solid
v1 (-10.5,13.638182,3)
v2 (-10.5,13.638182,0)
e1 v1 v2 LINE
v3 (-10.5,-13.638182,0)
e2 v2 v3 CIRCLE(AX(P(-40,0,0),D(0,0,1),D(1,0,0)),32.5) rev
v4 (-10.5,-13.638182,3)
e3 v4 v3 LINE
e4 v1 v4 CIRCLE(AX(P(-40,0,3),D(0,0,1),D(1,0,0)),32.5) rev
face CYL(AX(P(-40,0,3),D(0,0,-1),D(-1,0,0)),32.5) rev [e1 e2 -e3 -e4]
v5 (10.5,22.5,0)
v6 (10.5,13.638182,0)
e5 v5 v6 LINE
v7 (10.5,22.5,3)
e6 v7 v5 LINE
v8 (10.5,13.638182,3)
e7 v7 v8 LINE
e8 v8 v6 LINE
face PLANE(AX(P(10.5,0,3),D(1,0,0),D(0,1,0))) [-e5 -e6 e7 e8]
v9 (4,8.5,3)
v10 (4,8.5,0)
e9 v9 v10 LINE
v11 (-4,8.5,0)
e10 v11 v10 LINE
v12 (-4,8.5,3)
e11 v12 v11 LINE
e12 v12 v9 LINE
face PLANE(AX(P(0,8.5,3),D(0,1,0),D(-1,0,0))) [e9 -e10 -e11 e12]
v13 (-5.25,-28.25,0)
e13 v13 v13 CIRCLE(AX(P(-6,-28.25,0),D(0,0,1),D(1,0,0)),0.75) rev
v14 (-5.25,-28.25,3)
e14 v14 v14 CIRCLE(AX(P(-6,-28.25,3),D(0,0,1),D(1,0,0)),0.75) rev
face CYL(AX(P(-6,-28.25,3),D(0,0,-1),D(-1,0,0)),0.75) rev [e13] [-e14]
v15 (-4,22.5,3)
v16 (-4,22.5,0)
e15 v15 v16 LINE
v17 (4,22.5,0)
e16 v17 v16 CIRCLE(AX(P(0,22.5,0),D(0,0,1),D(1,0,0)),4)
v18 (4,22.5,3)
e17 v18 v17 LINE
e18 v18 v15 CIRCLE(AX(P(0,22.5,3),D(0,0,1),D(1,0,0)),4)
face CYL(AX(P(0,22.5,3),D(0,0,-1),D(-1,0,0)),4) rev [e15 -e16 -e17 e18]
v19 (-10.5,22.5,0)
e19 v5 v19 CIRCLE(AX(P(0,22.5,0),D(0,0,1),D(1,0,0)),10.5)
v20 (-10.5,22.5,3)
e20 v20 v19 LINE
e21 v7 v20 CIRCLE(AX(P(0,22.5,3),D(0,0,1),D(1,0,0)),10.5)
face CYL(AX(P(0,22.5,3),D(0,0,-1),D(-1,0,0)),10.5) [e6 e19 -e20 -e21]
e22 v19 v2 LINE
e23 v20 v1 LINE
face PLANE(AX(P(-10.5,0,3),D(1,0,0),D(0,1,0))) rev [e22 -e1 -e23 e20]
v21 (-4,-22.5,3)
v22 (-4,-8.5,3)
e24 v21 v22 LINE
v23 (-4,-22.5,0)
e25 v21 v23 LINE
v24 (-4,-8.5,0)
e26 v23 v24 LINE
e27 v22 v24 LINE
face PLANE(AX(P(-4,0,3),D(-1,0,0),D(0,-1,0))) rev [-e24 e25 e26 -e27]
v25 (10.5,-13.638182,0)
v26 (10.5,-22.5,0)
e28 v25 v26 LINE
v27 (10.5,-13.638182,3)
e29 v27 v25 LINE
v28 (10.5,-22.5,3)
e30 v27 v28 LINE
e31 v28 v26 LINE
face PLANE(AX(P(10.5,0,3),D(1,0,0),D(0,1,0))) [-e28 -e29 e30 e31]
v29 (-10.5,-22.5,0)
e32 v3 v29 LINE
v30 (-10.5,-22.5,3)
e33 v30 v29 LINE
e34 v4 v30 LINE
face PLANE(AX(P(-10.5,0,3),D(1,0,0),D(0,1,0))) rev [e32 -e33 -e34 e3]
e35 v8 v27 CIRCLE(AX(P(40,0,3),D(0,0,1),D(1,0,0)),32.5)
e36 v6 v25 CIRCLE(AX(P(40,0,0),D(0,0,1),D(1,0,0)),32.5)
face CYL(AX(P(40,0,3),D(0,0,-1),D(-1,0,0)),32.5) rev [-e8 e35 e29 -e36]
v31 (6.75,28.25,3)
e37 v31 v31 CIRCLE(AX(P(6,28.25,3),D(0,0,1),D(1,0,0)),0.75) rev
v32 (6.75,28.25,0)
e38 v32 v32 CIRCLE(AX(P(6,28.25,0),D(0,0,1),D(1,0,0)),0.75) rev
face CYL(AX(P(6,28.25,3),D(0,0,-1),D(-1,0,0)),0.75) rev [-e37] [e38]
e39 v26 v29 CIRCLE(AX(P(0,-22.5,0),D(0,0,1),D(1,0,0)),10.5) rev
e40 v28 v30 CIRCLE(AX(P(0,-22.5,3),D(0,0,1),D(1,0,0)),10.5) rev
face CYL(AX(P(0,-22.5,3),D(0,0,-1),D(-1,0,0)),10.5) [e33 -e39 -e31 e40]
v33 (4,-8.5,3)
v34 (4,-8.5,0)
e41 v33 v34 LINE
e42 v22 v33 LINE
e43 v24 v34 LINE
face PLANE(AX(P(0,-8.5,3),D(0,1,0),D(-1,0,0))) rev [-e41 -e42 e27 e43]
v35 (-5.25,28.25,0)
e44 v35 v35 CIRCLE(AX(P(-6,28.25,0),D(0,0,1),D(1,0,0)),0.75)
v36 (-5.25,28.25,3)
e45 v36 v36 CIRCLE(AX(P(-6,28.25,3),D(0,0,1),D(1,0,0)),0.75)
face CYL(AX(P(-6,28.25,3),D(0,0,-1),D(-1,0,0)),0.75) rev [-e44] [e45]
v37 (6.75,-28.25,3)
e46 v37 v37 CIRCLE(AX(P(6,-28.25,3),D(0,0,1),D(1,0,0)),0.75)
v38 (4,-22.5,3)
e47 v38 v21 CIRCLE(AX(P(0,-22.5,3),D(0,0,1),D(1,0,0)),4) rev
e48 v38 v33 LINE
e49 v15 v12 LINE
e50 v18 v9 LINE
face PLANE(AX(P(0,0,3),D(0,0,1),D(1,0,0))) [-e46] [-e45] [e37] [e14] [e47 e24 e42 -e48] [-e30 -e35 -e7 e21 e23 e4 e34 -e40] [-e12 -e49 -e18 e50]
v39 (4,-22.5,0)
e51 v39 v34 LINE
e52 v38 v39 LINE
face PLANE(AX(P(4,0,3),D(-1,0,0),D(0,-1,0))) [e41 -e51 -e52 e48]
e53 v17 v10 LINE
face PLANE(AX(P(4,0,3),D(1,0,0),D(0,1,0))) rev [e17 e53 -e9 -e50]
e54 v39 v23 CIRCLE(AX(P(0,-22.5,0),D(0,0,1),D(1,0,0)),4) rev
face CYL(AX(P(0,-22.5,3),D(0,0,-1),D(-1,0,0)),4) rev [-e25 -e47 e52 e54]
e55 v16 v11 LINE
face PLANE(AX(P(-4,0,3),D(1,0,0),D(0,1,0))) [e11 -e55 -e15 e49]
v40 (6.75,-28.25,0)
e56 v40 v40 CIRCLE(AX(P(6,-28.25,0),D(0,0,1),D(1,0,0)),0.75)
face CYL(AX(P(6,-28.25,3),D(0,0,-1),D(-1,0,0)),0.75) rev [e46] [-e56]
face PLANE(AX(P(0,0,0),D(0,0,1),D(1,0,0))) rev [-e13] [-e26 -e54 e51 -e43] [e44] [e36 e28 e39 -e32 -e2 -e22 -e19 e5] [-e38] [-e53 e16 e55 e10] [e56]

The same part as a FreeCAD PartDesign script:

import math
import FreeCAD as App
import Part
import Sketcher
Q = App.Units.Quantity

doc = App.newDocument("Part")
body = doc.addObject("PartDesign::Body", "Body")

sketch1 = doc.addObject("Sketcher::SketchObject", "Sketch")
body.addObject(sketch1)
sketch1.AttachmentSupport = (doc.XY_Plane, [""])
sketch1.MapMode = "FlatFace"
sketch1.addGeometry(Part.LineSegment(App.Vector(-10.5, 22.5, 0), App.Vector(-10.5, 13.638182, 0)), False)
sketch1.addGeometry(Part.ArcOfCircle(Part.Circle(App.Vector(-40, 0, 0), App.Vector(0, 0, 1), 32.5), math.radians(-24.811632), math.radians(24.811632)), False)
sketch1.addGeometry(Part.LineSegment(App.Vector(-10.5, -13.638182, 0), App.Vector(-10.5, -22.5, 0)), False)
sketch1.addGeometry(Part.ArcOfCircle(Part.Circle(App.Vector(0, -22.5, 0), App.Vector(0, 0, 1), 10.5), math.radians(180), math.radians(360)), False)
sketch1.addGeometry(Part.LineSegment(App.Vector(10.5, -22.5, 0), App.Vector(10.5, -13.638182, 0)), False)
sketch1.addGeometry(Part.ArcOfCircle(Part.Circle(App.Vector(40, 0, 0), App.Vector(0, 0, 1), 32.5), math.radians(155.188368), math.radians(204.811632)), False)
sketch1.addGeometry(Part.LineSegment(App.Vector(10.5, 13.638182, 0), App.Vector(10.5, 22.5, 0)), False)
sketch1.addGeometry(Part.ArcOfCircle(Part.Circle(App.Vector(0, 22.5, 0), App.Vector(0, 0, 1), 10.5), math.radians(0), math.radians(180)), False)
sketch1.addGeometry(Part.Circle(App.Vector(-6, -28.25, 0), App.Vector(0, 0, 1), 0.75), False)
sketch1.addGeometry(Part.LineSegment(App.Vector(4, -8.5, 0), App.Vector(4, -22.5, 0)), False)
sketch1.addGeometry(Part.ArcOfCircle(Part.Circle(App.Vector(0, -22.5, 0), App.Vector(0, 0, 1), 4), math.radians(179.999995), math.radians(359.999995)), False)
sketch1.addGeometry(Part.LineSegment(App.Vector(-4, -22.5, 0), App.Vector(-4, -8.5, 0)), False)
sketch1.addGeometry(Part.LineSegment(App.Vector(-4, -8.5, 0), App.Vector(4, -8.5, 0)), False)
sketch1.addGeometry(Part.Circle(App.Vector(6, -28.25, 0), App.Vector(0, 0, 1), 0.75), False)
sketch1.addGeometry(Part.Circle(App.Vector(-6, 28.25, 0), App.Vector(0, 0, 1), 0.75), False)
sketch1.addGeometry(Part.ArcOfCircle(Part.Circle(App.Vector(0, 22.5, 0), App.Vector(0, 0, 1), 4), math.radians(0.000005), math.radians(180.000005)), False)
sketch1.addGeometry(Part.LineSegment(App.Vector(4, 22.5, 0), App.Vector(4, 8.5, 0)), False)
sketch1.addGeometry(Part.LineSegment(App.Vector(4, 8.5, 0), App.Vector(-4, 8.5, 0)), False)
sketch1.addGeometry(Part.LineSegment(App.Vector(-4, 8.5, 0), App.Vector(-4, 22.5, 0)), False)
sketch1.addGeometry(Part.Circle(App.Vector(6, 28.25, 0), App.Vector(0, 0, 1), 0.75), False)
sketch1.addConstraint(Sketcher.Constraint("Coincident", 0, 2, 1, 2))
sketch1.addConstraint(Sketcher.Constraint("Coincident", 1, 1, 2, 1))
sketch1.addConstraint(Sketcher.Constraint("Tangent", 2, 2, 3, 1))
sketch1.addConstraint(Sketcher.Constraint("Tangent", 3, 2, 4, 1))
sketch1.addConstraint(Sketcher.Constraint("Coincident", 4, 2, 5, 2))
sketch1.addConstraint(Sketcher.Constraint("Coincident", 5, 1, 6, 1))
sketch1.addConstraint(Sketcher.Constraint("Tangent", 6, 2, 7, 1))
sketch1.addConstraint(Sketcher.Constraint("Tangent", 7, 2, 0, 1))
sketch1.addConstraint(Sketcher.Constraint("Tangent", 9, 2, 10, 2))
sketch1.addConstraint(Sketcher.Constraint("Tangent", 10, 1, 11, 1))
sketch1.addConstraint(Sketcher.Constraint("Coincident", 11, 2, 12, 1))
sketch1.addConstraint(Sketcher.Constraint("Coincident", 12, 2, 9, 1))
sketch1.addConstraint(Sketcher.Constraint("Tangent", 15, 1, 16, 1))
sketch1.addConstraint(Sketcher.Constraint("Coincident", 16, 2, 17, 1))
sketch1.addConstraint(Sketcher.Constraint("Coincident", 17, 2, 18, 1))
sketch1.addConstraint(Sketcher.Constraint("Tangent", 18, 2, 15, 2))
sketch1.addConstraint(Sketcher.Constraint("Vertical", 0))
sketch1.addConstraint(Sketcher.Constraint("Vertical", 2))
sketch1.addConstraint(Sketcher.Constraint("Vertical", 4))
sketch1.addConstraint(Sketcher.Constraint("Vertical", 6))
sketch1.addConstraint(Sketcher.Constraint("Vertical", 9))
sketch1.addConstraint(Sketcher.Constraint("Vertical", 11))
sketch1.addConstraint(Sketcher.Constraint("Horizontal", 12))
sketch1.addConstraint(Sketcher.Constraint("Vertical", 16))
sketch1.addConstraint(Sketcher.Constraint("Horizontal", 17))
sketch1.addConstraint(Sketcher.Constraint("Vertical", 18))
sketch1.addConstraint(Sketcher.Constraint("Coincident", 10, 3, 3, 3))
sketch1.addConstraint(Sketcher.Constraint("Coincident", 15, 3, 7, 3))
sketch1.addConstraint(Sketcher.Constraint("Equal", 1, 5))
sketch1.addConstraint(Sketcher.Constraint("Equal", 3, 7))
sketch1.addConstraint(Sketcher.Constraint("Equal", 8, 13))
sketch1.addConstraint(Sketcher.Constraint("Equal", 13, 14))
sketch1.addConstraint(Sketcher.Constraint("Equal", 10, 15))
sketch1.addConstraint(Sketcher.Constraint("Equal", 14, 19))
sketch1.addConstraint(Sketcher.Constraint("Symmetric", 1, 3, 5, 3, -1, 1))
sketch1.addConstraint(Sketcher.Constraint("Symmetric", 3, 3, 7, 3, -1, 1))
sketch1.addConstraint(Sketcher.Constraint("Symmetric", 13, 3, 14, 3, -1, 1))
sketch1.addConstraint(Sketcher.Constraint("Symmetric", 8, 3, 19, 3, -1, 1))
sketch1.addConstraint(Sketcher.Constraint("Symmetric", 8, 3, 13, 3, -2))
sketch1.addConstraint(Sketcher.Constraint("Symmetric", 1, 1, 4, 2, -2))
sketch1.addConstraint(Sketcher.Constraint("Equal", 11, 16))
sketch1.addConstraint(Sketcher.Constraint("Radius", 10, Q("4 mm")))
sketch1.addConstraint(Sketcher.Constraint("Diameter", 8, Q("1.5 mm")))
sketch1.addConstraint(Sketcher.Constraint("Radius", 1, Q("32.5 mm")))
sketch1.addConstraint(Sketcher.Constraint("Radius", 3, Q("10.5 mm")))
sketch1.addConstraint(Sketcher.Constraint("DistanceY", 9, 2, 9, 1, Q("14 mm")))
sketch1.addConstraint(Sketcher.Constraint("DistanceX", 1, 3, -1, 1, Q("40 mm")))
sketch1.addConstraint(Sketcher.Constraint("DistanceX", 8, 3, -1, 1, Q("6 mm")))
sketch1.addConstraint(Sketcher.Constraint("DistanceY", 3, 3, 7, 3, Q("45 mm")))
sketch1.addConstraint(Sketcher.Constraint("DistanceY", 8, 3, -1, 1, Q("28.25 mm")))
pad1 = doc.addObject("PartDesign::Pad", "Pad")
body.addObject(pad1)
pad1.Profile = sketch1
pad1.Length = 3

doc.recompute()
